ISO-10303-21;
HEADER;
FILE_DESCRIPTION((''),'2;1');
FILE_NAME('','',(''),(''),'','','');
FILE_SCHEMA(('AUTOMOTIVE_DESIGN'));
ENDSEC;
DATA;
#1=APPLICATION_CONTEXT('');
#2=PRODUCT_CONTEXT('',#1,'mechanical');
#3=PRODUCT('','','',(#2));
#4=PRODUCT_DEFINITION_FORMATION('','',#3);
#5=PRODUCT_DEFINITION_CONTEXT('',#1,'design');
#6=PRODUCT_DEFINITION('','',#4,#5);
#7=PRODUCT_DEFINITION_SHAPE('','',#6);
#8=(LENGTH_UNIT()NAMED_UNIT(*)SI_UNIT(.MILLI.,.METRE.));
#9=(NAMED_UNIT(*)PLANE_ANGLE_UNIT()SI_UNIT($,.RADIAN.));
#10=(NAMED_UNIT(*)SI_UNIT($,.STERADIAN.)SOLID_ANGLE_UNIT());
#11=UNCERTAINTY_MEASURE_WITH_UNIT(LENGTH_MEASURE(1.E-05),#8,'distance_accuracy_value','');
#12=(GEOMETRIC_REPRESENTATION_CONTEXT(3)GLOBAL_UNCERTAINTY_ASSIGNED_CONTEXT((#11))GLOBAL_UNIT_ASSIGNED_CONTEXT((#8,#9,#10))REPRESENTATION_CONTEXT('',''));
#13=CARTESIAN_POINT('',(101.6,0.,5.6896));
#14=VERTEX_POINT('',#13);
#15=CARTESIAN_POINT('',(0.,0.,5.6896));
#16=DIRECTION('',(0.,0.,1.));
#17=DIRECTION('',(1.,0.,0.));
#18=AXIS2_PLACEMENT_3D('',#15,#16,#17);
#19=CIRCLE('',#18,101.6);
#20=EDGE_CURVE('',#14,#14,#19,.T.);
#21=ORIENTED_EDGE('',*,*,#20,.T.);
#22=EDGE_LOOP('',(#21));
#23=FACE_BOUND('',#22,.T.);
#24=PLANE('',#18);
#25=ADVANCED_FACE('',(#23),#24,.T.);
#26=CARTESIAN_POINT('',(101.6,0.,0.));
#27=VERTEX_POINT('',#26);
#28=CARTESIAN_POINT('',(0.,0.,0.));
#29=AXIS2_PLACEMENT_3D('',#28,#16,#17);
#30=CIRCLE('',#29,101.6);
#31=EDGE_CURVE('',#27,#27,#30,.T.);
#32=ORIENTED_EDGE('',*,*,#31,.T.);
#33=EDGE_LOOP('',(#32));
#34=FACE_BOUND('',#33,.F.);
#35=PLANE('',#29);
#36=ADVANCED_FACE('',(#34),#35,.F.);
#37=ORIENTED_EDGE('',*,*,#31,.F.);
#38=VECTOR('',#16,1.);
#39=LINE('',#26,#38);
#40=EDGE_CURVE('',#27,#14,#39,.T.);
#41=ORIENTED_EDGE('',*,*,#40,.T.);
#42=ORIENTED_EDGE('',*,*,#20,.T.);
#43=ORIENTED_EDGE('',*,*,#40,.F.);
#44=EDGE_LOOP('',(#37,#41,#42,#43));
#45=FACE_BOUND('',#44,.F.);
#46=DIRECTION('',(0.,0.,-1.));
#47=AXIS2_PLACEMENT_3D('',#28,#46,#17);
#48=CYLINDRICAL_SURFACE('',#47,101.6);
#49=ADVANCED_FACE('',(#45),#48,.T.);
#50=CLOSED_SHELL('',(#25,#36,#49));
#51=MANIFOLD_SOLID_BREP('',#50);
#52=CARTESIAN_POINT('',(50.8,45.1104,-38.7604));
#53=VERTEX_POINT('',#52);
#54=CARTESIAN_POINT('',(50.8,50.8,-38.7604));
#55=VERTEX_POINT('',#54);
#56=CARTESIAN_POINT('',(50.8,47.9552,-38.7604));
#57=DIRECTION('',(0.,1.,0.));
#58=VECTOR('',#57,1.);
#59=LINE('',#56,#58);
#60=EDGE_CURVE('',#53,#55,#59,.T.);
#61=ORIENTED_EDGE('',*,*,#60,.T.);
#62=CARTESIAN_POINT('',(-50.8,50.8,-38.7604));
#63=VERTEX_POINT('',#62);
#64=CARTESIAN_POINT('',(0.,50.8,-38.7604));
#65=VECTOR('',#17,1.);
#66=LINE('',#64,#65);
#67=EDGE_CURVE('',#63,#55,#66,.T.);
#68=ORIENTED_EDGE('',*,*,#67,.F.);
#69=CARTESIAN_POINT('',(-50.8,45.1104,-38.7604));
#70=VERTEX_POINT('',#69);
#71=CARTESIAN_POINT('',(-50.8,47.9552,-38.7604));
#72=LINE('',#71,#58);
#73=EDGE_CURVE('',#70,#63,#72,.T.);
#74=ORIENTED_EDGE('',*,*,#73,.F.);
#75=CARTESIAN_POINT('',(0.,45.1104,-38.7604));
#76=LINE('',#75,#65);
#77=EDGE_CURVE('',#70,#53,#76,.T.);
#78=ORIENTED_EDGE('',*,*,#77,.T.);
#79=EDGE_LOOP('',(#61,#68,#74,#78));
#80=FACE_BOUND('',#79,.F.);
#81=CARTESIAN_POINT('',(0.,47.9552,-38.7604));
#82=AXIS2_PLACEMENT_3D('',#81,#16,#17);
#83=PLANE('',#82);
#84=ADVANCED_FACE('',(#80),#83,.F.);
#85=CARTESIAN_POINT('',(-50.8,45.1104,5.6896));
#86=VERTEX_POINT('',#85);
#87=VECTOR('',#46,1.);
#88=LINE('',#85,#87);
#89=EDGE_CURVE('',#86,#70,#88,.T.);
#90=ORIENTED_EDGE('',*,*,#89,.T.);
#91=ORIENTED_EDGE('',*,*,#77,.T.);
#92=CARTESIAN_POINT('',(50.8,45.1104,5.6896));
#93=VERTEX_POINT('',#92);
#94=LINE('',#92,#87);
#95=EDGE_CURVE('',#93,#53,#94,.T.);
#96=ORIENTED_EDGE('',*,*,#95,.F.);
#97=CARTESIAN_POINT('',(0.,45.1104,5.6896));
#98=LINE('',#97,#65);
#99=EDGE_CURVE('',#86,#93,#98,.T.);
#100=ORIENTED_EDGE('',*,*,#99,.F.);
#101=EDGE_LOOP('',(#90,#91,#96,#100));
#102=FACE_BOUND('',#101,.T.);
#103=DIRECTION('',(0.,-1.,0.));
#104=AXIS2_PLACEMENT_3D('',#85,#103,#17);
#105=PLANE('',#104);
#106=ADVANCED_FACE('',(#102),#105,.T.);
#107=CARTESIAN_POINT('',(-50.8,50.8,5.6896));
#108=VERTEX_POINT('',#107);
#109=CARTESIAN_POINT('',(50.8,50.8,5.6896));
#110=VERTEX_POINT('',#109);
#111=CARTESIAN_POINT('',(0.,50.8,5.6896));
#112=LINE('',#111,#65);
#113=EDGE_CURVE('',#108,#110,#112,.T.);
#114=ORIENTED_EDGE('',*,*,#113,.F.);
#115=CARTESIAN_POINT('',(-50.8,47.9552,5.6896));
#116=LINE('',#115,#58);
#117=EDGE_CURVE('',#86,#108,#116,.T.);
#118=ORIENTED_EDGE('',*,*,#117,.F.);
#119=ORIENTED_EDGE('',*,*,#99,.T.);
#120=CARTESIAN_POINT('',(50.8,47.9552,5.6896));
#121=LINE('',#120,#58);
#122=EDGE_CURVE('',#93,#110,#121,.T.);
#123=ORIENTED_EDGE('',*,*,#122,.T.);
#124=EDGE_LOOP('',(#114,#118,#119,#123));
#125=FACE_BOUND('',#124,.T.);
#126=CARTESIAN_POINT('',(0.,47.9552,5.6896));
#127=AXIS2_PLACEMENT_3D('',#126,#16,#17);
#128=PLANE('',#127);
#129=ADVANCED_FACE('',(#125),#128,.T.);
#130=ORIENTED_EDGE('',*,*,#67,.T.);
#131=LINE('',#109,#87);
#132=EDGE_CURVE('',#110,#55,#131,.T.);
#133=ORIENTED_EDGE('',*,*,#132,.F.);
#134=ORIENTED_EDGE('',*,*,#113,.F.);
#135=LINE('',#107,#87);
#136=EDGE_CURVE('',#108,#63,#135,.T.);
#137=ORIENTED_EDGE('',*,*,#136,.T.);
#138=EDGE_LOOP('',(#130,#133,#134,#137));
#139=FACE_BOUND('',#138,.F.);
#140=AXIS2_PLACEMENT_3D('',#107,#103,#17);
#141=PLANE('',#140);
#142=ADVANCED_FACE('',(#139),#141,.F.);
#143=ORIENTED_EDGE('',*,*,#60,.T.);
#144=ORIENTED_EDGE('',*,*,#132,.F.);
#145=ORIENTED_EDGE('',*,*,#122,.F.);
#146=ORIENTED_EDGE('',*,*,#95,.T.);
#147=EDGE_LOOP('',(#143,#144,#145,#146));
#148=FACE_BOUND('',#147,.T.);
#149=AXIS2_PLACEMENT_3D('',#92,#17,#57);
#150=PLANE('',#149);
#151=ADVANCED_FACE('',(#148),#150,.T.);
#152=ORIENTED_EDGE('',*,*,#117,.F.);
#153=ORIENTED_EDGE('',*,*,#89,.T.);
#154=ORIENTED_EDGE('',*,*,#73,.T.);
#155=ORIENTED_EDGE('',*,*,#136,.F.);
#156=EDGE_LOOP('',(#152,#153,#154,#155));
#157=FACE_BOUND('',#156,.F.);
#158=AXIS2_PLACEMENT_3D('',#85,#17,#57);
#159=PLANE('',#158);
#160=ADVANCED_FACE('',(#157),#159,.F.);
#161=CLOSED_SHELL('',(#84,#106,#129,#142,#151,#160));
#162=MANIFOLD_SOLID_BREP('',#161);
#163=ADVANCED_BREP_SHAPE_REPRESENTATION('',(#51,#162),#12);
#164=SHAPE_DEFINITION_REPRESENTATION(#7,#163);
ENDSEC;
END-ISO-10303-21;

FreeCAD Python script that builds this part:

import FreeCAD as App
import Part
import Sketcher

V = App.Vector
Q = App.Units.Quantity

doc = App.newDocument("Part")
params = doc.addObject("Spreadsheet::Sheet", "Params")
for row, (alias, value) in enumerate([
    ("sketch1_diameter", "8 in"),
    ("pad1_length", "0.224 in"),
    ("sketch2_width", "4 in"),
    ("sketch2_height", "0.224 in"),
    ("pad2_length", "1.75 in"),
], start=1):
    params.set(f"A{row}", alias)
    params.set(f"B{row}", "=" + value)
    params.setAlias(f"B{row}", alias)

body = doc.addObject("PartDesign::Body", "Body")

# Sketch on XY plane
sketch1 = doc.addObject("Sketcher::SketchObject", "Sketch")
body.addObject(sketch1)
sketch1.AttachmentSupport = (doc.XY_Plane, [""])
sketch1.MapMode = "FlatFace"
sketch1.addGeometry(Part.Circle(V(0, 0, 0), V(0, 0, 1), 101.6), False)
sketch1.addConstraint([
    Sketcher.Constraint("Coincident", 0, 3, -1, 1),
    Sketcher.Constraint("Diameter", 0, Q("8 in")),
])
sketch1.setExpression("Constraints[1]", "Params.sketch1_diameter")
pad1 = doc.addObject("PartDesign::Pad", "Pad")
body.addObject(pad1)
pad1.Profile = sketch1
pad1.setExpression("Length", "Params.pad1_length")
body2 = doc.addObject("PartDesign::Body", "Body001")

# Sketch on XY plane
sketch2 = doc.addObject("Sketcher::SketchObject", "Sketch001")
body2.addObject(sketch2)
sketch2.AttachmentSupport = (doc.getObject("XY_Plane001"), [""])
sketch2.MapMode = "FlatFace"
sketch2.AttachmentOffset = App.Placement(V(0, 0, 0.224 * 25.4), App.Rotation())
sketch2.addGeometry([
    Part.LineSegment(V(-50.8, 50.8, 0), V(-50.8, 45.1104, 0)),
    Part.LineSegment(V(-50.8, 45.1104, 0), V(50.8, 45.1104, 0)),
    Part.LineSegment(V(50.8, 45.1104, 0), V(50.8, 50.8, 0)),
    Part.LineSegment(V(50.8, 50.8, 0), V(-50.8, 50.8, 0)),
], False)
sketch2.addConstraint([
    Sketcher.Constraint("Coincident", 0, 2, 1, 1),
    Sketcher.Constraint("Coincident", 1, 2, 2, 1),
    Sketcher.Constraint("Coincident", 2, 2, 3, 1),
    Sketcher.Constraint("Coincident", 3, 2, 0, 1),
    Sketcher.Constraint("Vertical", 0),
    Sketcher.Constraint("Horizontal", 1),
    Sketcher.Constraint("Vertical", 2),
    Sketcher.Constraint("Horizontal", 3),
    Sketcher.Constraint("DistanceX", 1, 1, 1, 2, Q("4 in")),
    Sketcher.Constraint("DistanceX", 0, 2, -1, 1, Q("2 in")),
    Sketcher.Constraint("DistanceY", -1, 1, 2, 2, Q("2 in")),
    Sketcher.Constraint("DistanceY", 0, 2, 0, 1, Q("0.224 in")),
])
sketch2.setExpression("Constraints[8]", "Params.sketch2_width")
sketch2.setExpression("Constraints[11]", "Params.sketch2_height")
pad2 = doc.addObject("PartDesign::Pad", "Pad001")
body2.addObject(pad2)
pad2.Profile = sketch2
pad2.setExpression("Length", "Params.pad2_length")
pad2.Reversed = True

doc.recompute()
